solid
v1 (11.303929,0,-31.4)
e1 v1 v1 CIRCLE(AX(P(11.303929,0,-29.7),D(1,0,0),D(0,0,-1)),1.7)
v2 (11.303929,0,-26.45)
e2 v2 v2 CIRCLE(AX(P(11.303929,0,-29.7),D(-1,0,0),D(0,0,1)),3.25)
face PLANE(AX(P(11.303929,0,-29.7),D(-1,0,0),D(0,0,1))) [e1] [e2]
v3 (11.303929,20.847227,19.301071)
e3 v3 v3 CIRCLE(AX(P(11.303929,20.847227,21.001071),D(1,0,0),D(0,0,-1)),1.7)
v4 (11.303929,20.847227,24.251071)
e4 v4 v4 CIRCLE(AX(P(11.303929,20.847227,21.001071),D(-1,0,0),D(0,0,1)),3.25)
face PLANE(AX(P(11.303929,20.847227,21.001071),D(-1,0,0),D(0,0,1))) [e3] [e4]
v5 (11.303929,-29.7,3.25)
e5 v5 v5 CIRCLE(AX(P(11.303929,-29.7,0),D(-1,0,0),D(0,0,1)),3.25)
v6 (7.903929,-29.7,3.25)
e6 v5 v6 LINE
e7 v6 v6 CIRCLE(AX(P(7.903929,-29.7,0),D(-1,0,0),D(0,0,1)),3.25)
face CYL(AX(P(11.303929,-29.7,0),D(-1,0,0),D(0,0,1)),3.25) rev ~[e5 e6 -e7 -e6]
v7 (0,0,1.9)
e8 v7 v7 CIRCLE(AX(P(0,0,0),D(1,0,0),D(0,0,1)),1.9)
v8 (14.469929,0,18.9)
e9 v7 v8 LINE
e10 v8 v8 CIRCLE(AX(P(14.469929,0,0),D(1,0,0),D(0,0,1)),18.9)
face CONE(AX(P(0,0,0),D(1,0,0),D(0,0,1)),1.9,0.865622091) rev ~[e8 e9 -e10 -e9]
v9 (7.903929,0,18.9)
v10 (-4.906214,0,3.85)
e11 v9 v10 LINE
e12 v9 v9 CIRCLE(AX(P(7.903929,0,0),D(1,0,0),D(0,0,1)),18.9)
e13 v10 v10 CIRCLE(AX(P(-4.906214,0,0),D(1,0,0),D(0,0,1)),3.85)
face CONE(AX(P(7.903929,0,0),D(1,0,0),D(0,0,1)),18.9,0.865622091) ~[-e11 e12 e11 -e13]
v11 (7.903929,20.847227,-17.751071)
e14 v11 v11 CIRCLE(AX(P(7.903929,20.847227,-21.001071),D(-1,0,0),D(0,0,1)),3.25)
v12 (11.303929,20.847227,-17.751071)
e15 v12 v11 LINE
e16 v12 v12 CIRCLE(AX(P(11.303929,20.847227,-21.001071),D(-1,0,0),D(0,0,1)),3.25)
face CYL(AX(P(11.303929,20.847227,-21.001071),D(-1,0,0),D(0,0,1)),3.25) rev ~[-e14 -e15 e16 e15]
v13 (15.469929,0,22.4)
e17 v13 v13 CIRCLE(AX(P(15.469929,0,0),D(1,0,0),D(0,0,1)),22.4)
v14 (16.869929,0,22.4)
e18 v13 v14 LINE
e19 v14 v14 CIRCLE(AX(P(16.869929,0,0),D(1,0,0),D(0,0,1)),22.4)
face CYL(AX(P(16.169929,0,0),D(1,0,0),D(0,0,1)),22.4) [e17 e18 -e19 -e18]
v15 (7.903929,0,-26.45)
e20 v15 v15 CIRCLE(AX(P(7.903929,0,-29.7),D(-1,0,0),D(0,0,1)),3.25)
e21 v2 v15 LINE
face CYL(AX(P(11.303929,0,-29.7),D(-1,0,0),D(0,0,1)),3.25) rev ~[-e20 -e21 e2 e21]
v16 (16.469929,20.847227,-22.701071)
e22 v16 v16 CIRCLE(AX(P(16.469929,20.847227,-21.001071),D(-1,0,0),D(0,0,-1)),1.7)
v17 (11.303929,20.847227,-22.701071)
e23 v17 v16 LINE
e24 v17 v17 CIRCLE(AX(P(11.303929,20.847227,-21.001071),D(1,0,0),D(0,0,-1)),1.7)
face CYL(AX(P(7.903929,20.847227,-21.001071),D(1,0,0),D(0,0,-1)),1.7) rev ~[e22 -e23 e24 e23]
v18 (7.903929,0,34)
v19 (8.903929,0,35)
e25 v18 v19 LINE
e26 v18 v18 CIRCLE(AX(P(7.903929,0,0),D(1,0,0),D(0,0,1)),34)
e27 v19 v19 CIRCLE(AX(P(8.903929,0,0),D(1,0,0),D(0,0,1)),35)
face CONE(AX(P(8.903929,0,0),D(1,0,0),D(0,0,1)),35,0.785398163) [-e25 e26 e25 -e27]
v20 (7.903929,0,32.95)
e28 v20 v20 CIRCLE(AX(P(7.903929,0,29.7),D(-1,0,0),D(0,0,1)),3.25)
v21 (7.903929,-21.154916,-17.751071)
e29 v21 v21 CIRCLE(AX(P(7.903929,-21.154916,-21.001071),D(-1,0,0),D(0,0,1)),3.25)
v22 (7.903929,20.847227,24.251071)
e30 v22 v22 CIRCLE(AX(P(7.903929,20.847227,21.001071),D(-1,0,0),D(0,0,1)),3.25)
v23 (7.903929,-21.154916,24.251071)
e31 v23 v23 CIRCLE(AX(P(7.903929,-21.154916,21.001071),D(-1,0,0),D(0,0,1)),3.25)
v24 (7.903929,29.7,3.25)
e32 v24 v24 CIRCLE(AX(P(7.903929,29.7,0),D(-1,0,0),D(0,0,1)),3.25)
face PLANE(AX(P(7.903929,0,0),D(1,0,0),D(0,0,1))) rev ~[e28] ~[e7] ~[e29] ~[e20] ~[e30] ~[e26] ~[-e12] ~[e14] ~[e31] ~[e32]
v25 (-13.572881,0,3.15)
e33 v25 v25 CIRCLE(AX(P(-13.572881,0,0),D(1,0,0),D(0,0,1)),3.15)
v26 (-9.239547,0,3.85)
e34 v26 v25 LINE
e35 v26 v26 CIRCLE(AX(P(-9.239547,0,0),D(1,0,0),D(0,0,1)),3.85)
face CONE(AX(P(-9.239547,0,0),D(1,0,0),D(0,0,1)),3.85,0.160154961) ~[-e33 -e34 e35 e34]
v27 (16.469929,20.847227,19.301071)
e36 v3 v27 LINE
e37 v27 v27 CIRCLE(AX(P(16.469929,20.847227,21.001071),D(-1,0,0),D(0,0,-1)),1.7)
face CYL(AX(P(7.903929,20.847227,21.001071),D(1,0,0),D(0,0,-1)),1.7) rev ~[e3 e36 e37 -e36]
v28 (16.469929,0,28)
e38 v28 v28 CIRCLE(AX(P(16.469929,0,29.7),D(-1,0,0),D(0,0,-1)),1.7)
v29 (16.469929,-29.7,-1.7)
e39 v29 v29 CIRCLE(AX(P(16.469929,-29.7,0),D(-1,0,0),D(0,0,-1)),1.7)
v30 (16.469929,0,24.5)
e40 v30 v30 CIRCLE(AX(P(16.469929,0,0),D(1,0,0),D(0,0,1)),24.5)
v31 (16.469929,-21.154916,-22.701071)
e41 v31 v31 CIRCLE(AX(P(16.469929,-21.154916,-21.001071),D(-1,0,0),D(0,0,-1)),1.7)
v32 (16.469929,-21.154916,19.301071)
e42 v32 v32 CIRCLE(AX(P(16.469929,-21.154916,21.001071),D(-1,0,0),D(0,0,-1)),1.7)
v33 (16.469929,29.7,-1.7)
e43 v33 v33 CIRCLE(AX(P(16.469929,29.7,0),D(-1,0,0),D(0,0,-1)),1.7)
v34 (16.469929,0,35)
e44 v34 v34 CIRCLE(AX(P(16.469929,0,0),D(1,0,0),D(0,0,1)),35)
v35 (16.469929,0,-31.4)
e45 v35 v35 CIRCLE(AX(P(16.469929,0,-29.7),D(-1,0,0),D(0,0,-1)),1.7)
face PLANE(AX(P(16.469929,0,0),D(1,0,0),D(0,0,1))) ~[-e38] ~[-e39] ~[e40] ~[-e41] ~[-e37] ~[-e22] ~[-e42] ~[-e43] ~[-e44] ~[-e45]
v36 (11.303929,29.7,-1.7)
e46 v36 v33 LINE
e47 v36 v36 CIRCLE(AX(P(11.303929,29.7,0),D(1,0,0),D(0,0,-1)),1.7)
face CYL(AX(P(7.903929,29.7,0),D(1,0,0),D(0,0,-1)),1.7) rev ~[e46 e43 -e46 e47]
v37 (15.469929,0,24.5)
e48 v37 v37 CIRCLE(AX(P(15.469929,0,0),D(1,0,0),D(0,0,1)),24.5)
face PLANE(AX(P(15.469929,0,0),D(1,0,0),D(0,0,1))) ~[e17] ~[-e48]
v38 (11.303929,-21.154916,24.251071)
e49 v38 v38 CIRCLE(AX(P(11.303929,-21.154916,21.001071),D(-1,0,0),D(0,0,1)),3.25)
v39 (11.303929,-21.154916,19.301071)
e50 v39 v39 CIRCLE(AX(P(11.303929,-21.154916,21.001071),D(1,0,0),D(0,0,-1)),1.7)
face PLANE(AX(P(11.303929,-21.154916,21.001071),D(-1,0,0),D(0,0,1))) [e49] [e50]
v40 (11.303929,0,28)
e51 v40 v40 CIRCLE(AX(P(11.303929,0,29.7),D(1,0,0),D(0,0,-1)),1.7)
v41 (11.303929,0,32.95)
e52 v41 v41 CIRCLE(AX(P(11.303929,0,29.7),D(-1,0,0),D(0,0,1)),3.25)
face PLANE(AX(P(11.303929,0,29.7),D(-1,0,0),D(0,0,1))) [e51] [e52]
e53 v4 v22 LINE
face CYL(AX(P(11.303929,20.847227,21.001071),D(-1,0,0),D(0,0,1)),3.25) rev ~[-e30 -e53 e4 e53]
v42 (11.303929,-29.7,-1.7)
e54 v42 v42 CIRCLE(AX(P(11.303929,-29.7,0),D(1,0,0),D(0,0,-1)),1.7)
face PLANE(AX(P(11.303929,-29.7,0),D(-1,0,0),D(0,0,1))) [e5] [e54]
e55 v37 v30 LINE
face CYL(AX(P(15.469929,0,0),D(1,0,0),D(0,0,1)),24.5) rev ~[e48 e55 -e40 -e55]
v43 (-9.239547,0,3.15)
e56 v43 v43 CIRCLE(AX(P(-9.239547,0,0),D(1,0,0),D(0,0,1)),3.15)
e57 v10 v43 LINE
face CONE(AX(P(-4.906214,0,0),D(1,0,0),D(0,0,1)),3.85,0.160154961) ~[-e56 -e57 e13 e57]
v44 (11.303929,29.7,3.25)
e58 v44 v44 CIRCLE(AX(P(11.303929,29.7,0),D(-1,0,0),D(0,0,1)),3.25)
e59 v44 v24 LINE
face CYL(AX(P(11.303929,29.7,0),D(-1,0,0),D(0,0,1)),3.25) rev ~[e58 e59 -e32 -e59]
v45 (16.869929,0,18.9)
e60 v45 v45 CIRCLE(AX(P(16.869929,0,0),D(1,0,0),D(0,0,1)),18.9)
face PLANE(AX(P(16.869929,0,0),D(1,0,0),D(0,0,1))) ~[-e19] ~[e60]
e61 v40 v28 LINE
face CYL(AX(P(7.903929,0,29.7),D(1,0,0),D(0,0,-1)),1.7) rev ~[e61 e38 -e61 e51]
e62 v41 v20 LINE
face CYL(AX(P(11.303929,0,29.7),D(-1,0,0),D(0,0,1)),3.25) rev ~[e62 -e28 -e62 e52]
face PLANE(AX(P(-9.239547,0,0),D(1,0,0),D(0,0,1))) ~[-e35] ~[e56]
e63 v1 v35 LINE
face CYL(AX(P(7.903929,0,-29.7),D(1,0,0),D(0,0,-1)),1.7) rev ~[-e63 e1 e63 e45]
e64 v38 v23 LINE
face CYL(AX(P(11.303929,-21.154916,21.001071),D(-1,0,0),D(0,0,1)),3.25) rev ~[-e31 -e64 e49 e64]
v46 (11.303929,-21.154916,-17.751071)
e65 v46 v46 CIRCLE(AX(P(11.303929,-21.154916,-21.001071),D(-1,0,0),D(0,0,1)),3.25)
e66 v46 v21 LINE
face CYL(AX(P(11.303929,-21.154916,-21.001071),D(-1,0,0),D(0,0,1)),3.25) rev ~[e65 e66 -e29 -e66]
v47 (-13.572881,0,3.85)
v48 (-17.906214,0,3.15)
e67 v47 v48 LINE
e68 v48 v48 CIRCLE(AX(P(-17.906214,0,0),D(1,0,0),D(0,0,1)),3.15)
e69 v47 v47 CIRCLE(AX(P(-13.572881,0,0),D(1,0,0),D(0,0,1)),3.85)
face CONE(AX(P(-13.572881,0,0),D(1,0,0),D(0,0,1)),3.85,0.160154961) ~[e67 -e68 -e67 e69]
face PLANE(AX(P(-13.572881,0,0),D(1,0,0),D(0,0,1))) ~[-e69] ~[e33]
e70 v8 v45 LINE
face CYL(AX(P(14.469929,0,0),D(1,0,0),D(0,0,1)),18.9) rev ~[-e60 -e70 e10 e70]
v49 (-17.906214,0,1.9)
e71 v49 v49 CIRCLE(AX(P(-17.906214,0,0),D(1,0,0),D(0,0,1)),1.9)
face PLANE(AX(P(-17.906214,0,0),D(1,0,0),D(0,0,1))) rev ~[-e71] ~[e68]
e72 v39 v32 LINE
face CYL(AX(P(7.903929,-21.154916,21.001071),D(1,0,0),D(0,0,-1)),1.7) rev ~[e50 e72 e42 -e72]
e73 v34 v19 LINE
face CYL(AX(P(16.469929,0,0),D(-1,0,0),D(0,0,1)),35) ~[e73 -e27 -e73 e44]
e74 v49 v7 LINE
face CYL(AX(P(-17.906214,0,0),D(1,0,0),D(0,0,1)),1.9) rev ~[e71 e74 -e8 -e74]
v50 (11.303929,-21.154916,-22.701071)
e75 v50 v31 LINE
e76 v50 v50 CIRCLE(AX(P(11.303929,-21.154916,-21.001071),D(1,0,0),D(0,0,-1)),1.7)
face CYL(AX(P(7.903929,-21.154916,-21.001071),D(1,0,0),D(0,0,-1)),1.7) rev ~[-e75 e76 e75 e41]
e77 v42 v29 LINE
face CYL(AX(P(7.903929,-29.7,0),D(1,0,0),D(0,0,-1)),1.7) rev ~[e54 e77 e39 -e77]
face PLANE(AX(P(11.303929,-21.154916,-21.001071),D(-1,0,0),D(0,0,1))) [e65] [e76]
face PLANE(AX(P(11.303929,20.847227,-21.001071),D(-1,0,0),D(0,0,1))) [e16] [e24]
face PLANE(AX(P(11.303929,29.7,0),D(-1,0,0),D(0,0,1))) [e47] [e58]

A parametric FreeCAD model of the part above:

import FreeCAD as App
import Part
import Sketcher
from FreeCAD import Vector


def edges_at(feature, points):
    """Names of the edges that pass closest to the given points."""
    edges = feature.Shape.Edges
    near = lambda p: min(range(len(edges)), key=lambda i: edges[i].distToShape(Part.Vertex(*p))[0])
    return sorted({f"Edge{near(p) + 1}" for p in points})

doc = App.newDocument("Part")
body = doc.addObject("PartDesign::Body", "Body")

# Sketch on XY plane
sketch1 = doc.addObject("Sketcher::SketchObject", "Sketch")
body.addObject(sketch1)
sketch1.AttachmentSupport = (doc.XY_Plane, [""])
sketch1.MapMode = "FlatFace"
sketch1.addGeometry([
    Part.LineSegment(Vector(-13.6, 3.1, 0), Vector(-13.6, 3.9, 0)),  # 0
    Part.LineSegment(Vector(-13.6, 3.9, 0), Vector(-17.9, 3.1, 0)),  # 1
    Part.LineSegment(Vector(-17.9, 3.1, 0), Vector(-17.9, 1.9, 0)),  # 2
    Part.LineSegment(Vector(-17.9, 1.9, 0), Vector(0, 1.9, 0)),  # 3
    Part.LineSegment(Vector(0, 1.9, 0), Vector(14.5, 18.9, 0)),  # 4
    Part.LineSegment(Vector(14.5, 18.9, 0), Vector(16.9, 18.9, 0)),  # 5
    Part.LineSegment(Vector(16.9, 18.9, 0), Vector(16.9, 22.4, 0)),  # 6
    Part.LineSegment(Vector(16.9, 22.4, 0), Vector(15.5, 22.4, 0)),  # 7
    Part.LineSegment(Vector(15.5, 22.4, 0), Vector(15.5, 24.5, 0)),  # 8
    Part.LineSegment(Vector(15.5, 24.5, 0), Vector(16.5, 24.5, 0)),  # 9
    Part.LineSegment(Vector(16.5, 24.5, 0), Vector(16.5, 35, 0)),  # 10
    Part.LineSegment(Vector(16.5, 35, 0), Vector(7.9, 35, 0)),  # 11
    Part.LineSegment(Vector(7.9, 35, 0), Vector(7.9, 18.9, 0)),  # 12
    Part.LineSegment(Vector(7.9, 18.9, 0), Vector(-4.9, 3.9, 0)),  # 13
    Part.LineSegment(Vector(-4.9, 3.9, 0), Vector(-9.2, 3.1, 0)),  # 14
    Part.LineSegment(Vector(-9.2, 3.1, 0), Vector(-9.2, 3.9, 0)),  # 15
    Part.LineSegment(Vector(-9.2, 3.9, 0), Vector(-13.6, 3.1, 0)),  # 16
], False)
sketch1.addConstraint([
    Sketcher.Constraint("Coincident", 0, 2, 1, 1),
    Sketcher.Constraint("Coincident", 1, 2, 2, 1),
    Sketcher.Constraint("Coincident", 2, 2, 3, 1),
    Sketcher.Constraint("Coincident", 3, 2, 4, 1),
    Sketcher.Constraint("Coincident", 4, 2, 5, 1),
    Sketcher.Constraint("Coincident", 5, 2, 6, 1),
    Sketcher.Constraint("Coincident", 6, 2, 7, 1),
    Sketcher.Constraint("Coincident", 7, 2, 8, 1),
    Sketcher.Constraint("Coincident", 8, 2, 9, 1),
    Sketcher.Constraint("Coincident", 9, 2, 10, 1),
    Sketcher.Constraint("Coincident", 10, 2, 11, 1),
    Sketcher.Constraint("Coincident", 11, 2, 12, 1),
    Sketcher.Constraint("Coincident", 12, 2, 13, 1),
    Sketcher.Constraint("Coincident", 13, 2, 14, 1),
    Sketcher.Constraint("Coincident", 14, 2, 15, 1),
    Sketcher.Constraint("Coincident", 15, 2, 16, 1),
    Sketcher.Constraint("Coincident", 16, 2, 0, 1),
    Sketcher.Constraint("Vertical", 0),
    Sketcher.Constraint("Vertical", 2),
    Sketcher.Constraint("Horizontal", 3),
    Sketcher.Constraint("Horizontal", 5),
    Sketcher.Constraint("Vertical", 6),
    Sketcher.Constraint("Horizontal", 7),
    Sketcher.Constraint("Vertical", 8),
    Sketcher.Constraint("Horizontal", 9),
    Sketcher.Constraint("Vertical", 10),
    Sketcher.Constraint("Horizontal", 11),
    Sketcher.Constraint("Vertical", 12),
    Sketcher.Constraint("Vertical", 15),
    Sketcher.Constraint("PointOnObject", 3, 2, -2),
    Sketcher.Constraint("Parallel", 4, 13),
    Sketcher.Constraint("Parallel", 1, 14),
    Sketcher.Constraint("Parallel", 14, 16),
    Sketcher.Constraint("Horizontal", 5, 2, 12, 2),
    Sketcher.Constraint("Horizontal", 0, 2, 13, 2),
    Sketcher.Constraint("Horizontal", 1, 2, 14, 2),
    Sketcher.Constraint("Horizontal", 13, 2, 15, 2),
    Sketcher.Constraint("Horizontal", 14, 2, 16, 2),
    Sketcher.Constraint("DistanceX", 9, 1, 9, 2, 1.0),
    Sketcher.Constraint("DistanceX", 5, 1, 5, 2, 2.4),
    Sketcher.Constraint("DistanceX", 7, 2, 7, 1, 1.4),
    Sketcher.Constraint("DistanceY", 0, 1, 0, 2, 0.7),
    Sketcher.Constraint("DistanceY", 6, 1, 6, 2, 3.5),
    Sketcher.Constraint("DistanceY", 8, 1, 8, 2, 2.1),
    Sketcher.Constraint("DistanceY", 10, 1, 10, 2, 10.5),
    Sketcher.Constraint("DistanceY", -1, 1, 10, 2, 35.0),
    Sketcher.Constraint("DistanceY", 3, 2, 4, 2, 17.0),
    Sketcher.Constraint("DistanceX", 1, 2, 13, 2, 13.0),
    Sketcher.Constraint("DistanceY", 2, 2, 2, 1, 1.25),
    Sketcher.Constraint("DistanceX", 11, 2, 11, 1, 8.566),
    Sketcher.Constraint("Distance", 4, 22.3244),
])
revolution = doc.addObject("PartDesign::Revolution", "Revolution")
body.addObject(revolution)
revolution.Profile = sketch1
revolution.ReferenceAxis = (sketch1, ["H_Axis"])
revolution.Angle = 360

# Sketch on YZ plane
sketch2 = doc.addObject("Sketcher::SketchObject", "Sketch001")
body.addObject(sketch2)
sketch2.AttachmentSupport = (doc.YZ_Plane, [""])
sketch2.MapMode = "FlatFace"
sketch2.AttachmentOffset = App.Placement(Vector(0, 0, 7.903929), App.Rotation())
sketch2.addGeometry([
    Part.Circle(Vector(-21.2, -21, 0), Vector(0, 0, 1), 1.7),  # 0
    Part.Circle(Vector(29.7, 0, 0), Vector(0, 0, 1), 1.7),  # 1
    Part.Circle(Vector(0, 29.7, 0), Vector(0, 0, 1), 1.7),  # 2
    Part.Circle(Vector(0, -29.7, 0), Vector(0, 0, 1), 1.7),  # 3
    Part.Circle(Vector(-29.7, 0, 0), Vector(0, 0, 1), 1.7),  # 4
    Part.Circle(Vector(20.8, -21, 0), Vector(0, 0, 1), 1.7),  # 5
    Part.Circle(Vector(20.8, 21, 0), Vector(0, 0, 1), 1.7),  # 6
    Part.Circle(Vector(-21.2, 21, 0), Vector(0, 0, 1), 1.7),  # 7
], False)
sketch2.addConstraint([
    Sketcher.Constraint("Equal", 0, 1),
    Sketcher.Constraint("Equal", 1, 2),
    Sketcher.Constraint("Equal", 2, 3),
    Sketcher.Constraint("Equal", 3, 4),
    Sketcher.Constraint("Equal", 4, 5),
    Sketcher.Constraint("Equal", 5, 6),
    Sketcher.Constraint("Equal", 6, 7),
    Sketcher.Constraint("Symmetric", 2, 3, 3, 3, -1, 1),
    Sketcher.Constraint("Symmetric", 1, 3, 4, 3, -1, 1),
    Sketcher.Constraint("Symmetric", 5, 3, 6, 3, -1),
    Sketcher.Constraint("Symmetric", 0, 3, 7, 3, -1),
    Sketcher.Constraint("PointOnObject", 1, 3, -1),
    Sketcher.Constraint("PointOnObject", 2, 3, -2),
    Sketcher.Constraint("Horizontal", 0, 3, 5, 3),
    Sketcher.Constraint("Diameter", 0, 3.4),
    Sketcher.Constraint("DistanceX", -1, 1, 1, 3, 29.7),
    Sketcher.Constraint("DistanceY", -1, 1, 2, 3, 29.7),
    Sketcher.Constraint("DistanceY", 0, 3, -1, 1, 21.001071),
    Sketcher.Constraint("DistanceX", 0, 3, -1, 1, 21.154916),
    Sketcher.Constraint("DistanceX", -1, 1, 5, 3, 20.847227),
])
doc.recompute()
hole = doc.addObject("PartDesign::Hole", "Hole")
body.addObject(hole)
hole.Profile = sketch2
hole.ThreadType = "None"
hole.Diameter = 3.4
hole.DepthType = "Dimension"
hole.Depth = 8.566
hole.DrillPoint = "Angled"
hole.DrillPointAngle = 118
hole.HoleCutType = "Counterbore"
hole.HoleCutDiameter = 6.5
hole.HoleCutDepth = 3.4
hole.Reversed = True
doc.recompute()

chamfer = doc.addObject("PartDesign::Chamfer", "Chamfer")
body.addObject(chamfer)
chamfer.Base = (hole, edges_at(hole, [(7.904, 0, -35)]))
chamfer.Size = 1

doc.recompute()
